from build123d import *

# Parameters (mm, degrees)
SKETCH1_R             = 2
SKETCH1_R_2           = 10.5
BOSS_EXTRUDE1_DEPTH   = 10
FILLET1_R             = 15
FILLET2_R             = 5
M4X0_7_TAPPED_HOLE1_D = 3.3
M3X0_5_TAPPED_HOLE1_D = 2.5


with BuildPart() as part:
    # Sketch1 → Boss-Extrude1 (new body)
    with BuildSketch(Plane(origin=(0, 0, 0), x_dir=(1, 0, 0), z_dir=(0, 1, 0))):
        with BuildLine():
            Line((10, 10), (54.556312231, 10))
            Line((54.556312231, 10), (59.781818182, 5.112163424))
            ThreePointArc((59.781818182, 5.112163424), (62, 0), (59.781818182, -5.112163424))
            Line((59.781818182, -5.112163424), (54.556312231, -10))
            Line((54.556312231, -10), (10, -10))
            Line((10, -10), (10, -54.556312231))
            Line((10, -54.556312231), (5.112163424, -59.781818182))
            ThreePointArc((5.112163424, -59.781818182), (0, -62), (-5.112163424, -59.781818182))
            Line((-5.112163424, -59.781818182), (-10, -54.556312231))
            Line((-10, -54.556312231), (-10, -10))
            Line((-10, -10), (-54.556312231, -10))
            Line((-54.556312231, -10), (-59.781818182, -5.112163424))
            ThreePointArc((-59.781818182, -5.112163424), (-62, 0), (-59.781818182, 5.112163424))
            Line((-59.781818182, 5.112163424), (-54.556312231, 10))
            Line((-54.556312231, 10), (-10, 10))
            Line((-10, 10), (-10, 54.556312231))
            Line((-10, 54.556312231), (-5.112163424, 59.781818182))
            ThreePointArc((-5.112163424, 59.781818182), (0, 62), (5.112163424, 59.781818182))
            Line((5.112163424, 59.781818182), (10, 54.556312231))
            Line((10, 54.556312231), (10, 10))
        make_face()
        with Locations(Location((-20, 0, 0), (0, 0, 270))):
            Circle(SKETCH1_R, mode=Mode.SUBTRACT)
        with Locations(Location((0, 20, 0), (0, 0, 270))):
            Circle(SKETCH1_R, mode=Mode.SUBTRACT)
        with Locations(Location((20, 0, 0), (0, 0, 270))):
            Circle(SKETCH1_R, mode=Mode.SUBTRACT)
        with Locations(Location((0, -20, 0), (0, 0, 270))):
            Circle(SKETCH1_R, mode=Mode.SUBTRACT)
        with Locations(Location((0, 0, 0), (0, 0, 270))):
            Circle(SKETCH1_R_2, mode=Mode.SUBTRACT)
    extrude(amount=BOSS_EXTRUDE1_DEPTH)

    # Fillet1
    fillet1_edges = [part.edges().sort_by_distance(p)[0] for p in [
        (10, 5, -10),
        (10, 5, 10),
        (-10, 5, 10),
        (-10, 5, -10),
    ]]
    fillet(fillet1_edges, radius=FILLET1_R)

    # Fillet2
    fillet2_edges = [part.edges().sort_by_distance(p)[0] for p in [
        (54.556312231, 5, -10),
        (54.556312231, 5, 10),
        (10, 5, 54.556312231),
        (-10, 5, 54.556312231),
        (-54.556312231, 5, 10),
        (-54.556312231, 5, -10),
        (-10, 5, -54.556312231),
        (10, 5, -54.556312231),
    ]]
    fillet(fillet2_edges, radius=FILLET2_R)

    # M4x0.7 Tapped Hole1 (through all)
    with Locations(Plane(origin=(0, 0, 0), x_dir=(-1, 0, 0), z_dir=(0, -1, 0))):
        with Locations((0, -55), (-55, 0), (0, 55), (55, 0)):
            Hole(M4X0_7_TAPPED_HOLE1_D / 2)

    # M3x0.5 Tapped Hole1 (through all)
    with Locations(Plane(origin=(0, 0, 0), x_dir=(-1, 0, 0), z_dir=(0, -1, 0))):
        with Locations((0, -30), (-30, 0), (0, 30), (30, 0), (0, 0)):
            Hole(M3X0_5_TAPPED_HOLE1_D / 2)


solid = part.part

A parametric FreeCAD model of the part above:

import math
import FreeCAD as App
import Part
import Sketcher

V = App.Vector
Q = App.Units.Quantity


def edges_at(feature, points):
    """Names of the edges that pass closest to the given points."""
    edges = feature.Shape.Edges
    near = lambda p: min(range(len(edges)), key=lambda i: edges[i].distToShape(Part.Vertex(*p))[0])
    return sorted({f"Edge{near(p) + 1}" for p in points})

doc = App.newDocument("Part")
body = doc.addObject("PartDesign::Body", "Body")

# Sketch on XZ plane
sketch1 = doc.addObject("Sketcher::SketchObject", "Sketch")
body.addObject(sketch1)
sketch1.AttachmentSupport = (doc.XZ_Plane, [""])
sketch1.MapMode = "FlatFace"
sketch1.addGeometry(Part.LineSegment(V(54.6, -10, 0), V(10, -10, 0)), False)
sketch1.addGeometry(Part.LineSegment(V(10, -10, 0), V(10, -54.6, 0)), False)
sketch1.addGeometry(Part.LineSegment(V(10, -54.6, 0), V(5.1, -59.8, 0)), False)
sketch1.addGeometry(Part.ArcOfCircle(Part.Circle(V(0, -55, 0), V(0, 0, 1), 7), math.radians(-137), math.radians(-43)), False)
sketch1.addGeometry(Part.LineSegment(V(-5.1, -59.8, 0), V(-10, -54.6, 0)), False)
sketch1.addGeometry(Part.LineSegment(V(-10, -54.6, 0), V(-10, -10, 0)), False)
sketch1.addGeometry(Part.LineSegment(V(-10, -10, 0), V(-54.6, -10, 0)), False)
sketch1.addGeometry(Part.LineSegment(V(-54.6, -10, 0), V(-59.8, -5.1, 0)), False)
sketch1.addGeometry(Part.ArcOfCircle(Part.Circle(V(-55, 0, 0), V(0, 0, 1), 7), math.radians(133), math.radians(227)), False)
sketch1.addGeometry(Part.LineSegment(V(-59.8, 5.1, 0), V(-54.6, 10, 0)), False)
sketch1.addGeometry(Part.LineSegment(V(-54.6, 10, 0), V(-10, 10, 0)), False)
sketch1.addGeometry(Part.LineSegment(V(-10, 10, 0), V(-10, 54.6, 0)), False)
sketch1.addGeometry(Part.LineSegment(V(-10, 54.6, 0), V(-5.1, 59.8, 0)), False)
sketch1.addGeometry(Part.ArcOfCircle(Part.Circle(V(0, 55, 0), V(0, 0, 1), 7), math.radians(43), math.radians(137)), False)
sketch1.addGeometry(Part.LineSegment(V(5.1, 59.8, 0), V(10, 54.6, 0)), False)
sketch1.addGeometry(Part.LineSegment(V(10, 54.6, 0), V(10, 10, 0)), False)
sketch1.addGeometry(Part.LineSegment(V(10, 10, 0), V(54.6, 10, 0)), False)
sketch1.addGeometry(Part.LineSegment(V(54.6, 10, 0), V(59.8, 5.1, 0)), False)
sketch1.addGeometry(Part.ArcOfCircle(Part.Circle(V(55, 0, 0), V(0, 0, 1), 7), math.radians(-47), math.radians(47)), False)
sketch1.addGeometry(Part.LineSegment(V(59.8, -5.1, 0), V(54.6, -10, 0)), False)
sketch1.addGeometry(Part.Circle(V(0, 20, 0), V(0, 0, 1), 2), False)
sketch1.addGeometry(Part.Circle(V(20, 0, 0), V(0, 0, 1), 2), False)
sketch1.addGeometry(Part.Circle(V(0, 0, 0), V(0, 0, 1), 10.5), False)
sketch1.addGeometry(Part.Circle(V(-20, 0, 0), V(0, 0, 1), 2), False)
sketch1.addGeometry(Part.Circle(V(0, -20, 0), V(0, 0, 1), 2), False)
sketch1.addConstraint(Sketcher.Constraint("Coincident", 0, 2, 1, 1))
sketch1.addConstraint(Sketcher.Constraint("Coincident", 1, 2, 2, 1))
sketch1.addConstraint(Sketcher.Constraint("Tangent", 2, 2, 3, 2))
sketch1.addConstraint(Sketcher.Constraint("Tangent", 3, 1, 4, 1))
sketch1.addConstraint(Sketcher.Constraint("Coincident", 4, 2, 5, 1))
sketch1.addConstraint(Sketcher.Constraint("Coincident", 5, 2, 6, 1))
sketch1.addConstraint(Sketcher.Constraint("Coincident", 6, 2, 7, 1))
sketch1.addConstraint(Sketcher.Constraint("Tangent", 7, 2, 8, 2))
sketch1.addConstraint(Sketcher.Constraint("Tangent", 8, 1, 9, 1))
sketch1.addConstraint(Sketcher.Constraint("Coincident", 9, 2, 10, 1))
sketch1.addConstraint(Sketcher.Constraint("Coincident", 10, 2, 11, 1))
sketch1.addConstraint(Sketcher.Constraint("Coincident", 11, 2, 12, 1))
sketch1.addConstraint(Sketcher.Constraint("Tangent", 12, 2, 13, 2))
sketch1.addConstraint(Sketcher.Constraint("Tangent", 13, 1, 14, 1))
sketch1.addConstraint(Sketcher.Constraint("Coincident", 14, 2, 15, 1))
sketch1.addConstraint(Sketcher.Constraint("Coincident", 15, 2, 16, 1))
sketch1.addConstraint(Sketcher.Constraint("Coincident", 16, 2, 17, 1))
sketch1.addConstraint(Sketcher.Constraint("Tangent", 17, 2, 18, 2))
sketch1.addConstraint(Sketcher.Constraint("Tangent", 18, 1, 19, 1))
sketch1.addConstraint(Sketcher.Constraint("Coincident", 19, 2, 0, 1))
sketch1.addConstraint(Sketcher.Constraint("Horizontal", 0))
sketch1.addConstraint(Sketcher.Constraint("Vertical", 1))
sketch1.addConstraint(Sketcher.Constraint("Vertical", 5))
sketch1.addConstraint(Sketcher.Constraint("Horizontal", 6))
sketch1.addConstraint(Sketcher.Constraint("Horizontal", 10))
sketch1.addConstraint(Sketcher.Constraint("Vertical", 11))
sketch1.addConstraint(Sketcher.Constraint("Vertical", 15))
sketch1.addConstraint(Sketcher.Constraint("Horizontal", 16))
sketch1.addConstraint(Sketcher.Constraint("Coincident", 22, 3, -1, 1))
sketch1.addConstraint(Sketcher.Constraint("Equal", 3, 8))
sketch1.addConstraint(Sketcher.Constraint("Equal", 8, 13))
sketch1.addConstraint(Sketcher.Constraint("Equal", 13, 18))
sketch1.addConstraint(Sketcher.Constraint("Equal", 20, 21))
sketch1.addConstraint(Sketcher.Constraint("Equal", 21, 23))
sketch1.addConstraint(Sketcher.Constraint("Equal", 23, 24))
sketch1.addConstraint(Sketcher.Constraint("Symmetric", 3, 3, 13, 3, -1, 1))
sketch1.addConstraint(Sketcher.Constraint("Symmetric", 8, 3, 18, 3, -1, 1))
sketch1.addConstraint(Sketcher.Constraint("Symmetric", 21, 3, 23, 3, -1, 1))
sketch1.addConstraint(Sketcher.Constraint("Symmetric", 20, 3, 24, 3, -1, 1))
sketch1.addConstraint(Sketcher.Constraint("Symmetric", 0, 2, 10, 2, -1, 1))
sketch1.addConstraint(Sketcher.Constraint("Symmetric", 4, 2, 14, 2, -1, 1))
sketch1.addConstraint(Sketcher.Constraint("Symmetric", 6, 2, 16, 2, -1, 1))
sketch1.addConstraint(Sketcher.Constraint("Symmetric", 2, 2, 3, 1, -2))
sketch1.addConstraint(Sketcher.Constraint("Symmetric", 0, 2, 5, 2, -2))
sketch1.addConstraint(Sketcher.Constraint("Symmetric", 8, 1, 17, 2, -2))
sketch1.addConstraint(Sketcher.Constraint("PointOnObject", 20, 3, -2))
sketch1.addConstraint(Sketcher.Constraint("PointOnObject", 21, 3, -1))
sketch1.addConstraint(Sketcher.Constraint("Perpendicular", 2, 7))
sketch1.addConstraint(Sketcher.Constraint("Perpendicular", 7, 12))
sketch1.addConstraint(Sketcher.Constraint("Perpendicular", 14, 19))
sketch1.addConstraint(Sketcher.Constraint("Equal", 16, 1))
sketch1.addConstraint(Sketcher.Constraint("Equal", 4, 7))
sketch1.addConstraint(Sketcher.Constraint("Diameter", 20, Q("4 mm")))
sketch1.addConstraint(Sketcher.Constraint("Diameter", 22, Q("21 mm")))
sketch1.addConstraint(Sketcher.Constraint("Radius", 3, Q("7 mm")))
sketch1.addConstraint(Sketcher.Constraint("DistanceY", 3, 3, -1, 1, Q("55 mm")))
sketch1.addConstraint(Sketcher.Constraint("DistanceY", -1, 1, 20, 3, Q("20 mm")))
sketch1.addConstraint(Sketcher.Constraint("DistanceX", -1, 1, 21, 3, Q("20 mm")))
sketch1.addConstraint(Sketcher.Constraint("DistanceX", -1, 1, 0, 2, Q("10 mm")))
sketch1.addConstraint(Sketcher.Constraint("Distance", 2, Q("7.155198 mm")))
pad1 = doc.addObject("PartDesign::Pad", "Pad")
body.addObject(pad1)
pad1.Profile = sketch1
pad1.Length = 10
pad1.Reversed = True
doc.recompute()

fillet = doc.addObject("PartDesign::Fillet", "Fillet")
body.addObject(fillet)
fillet.Base = (pad1, edges_at(pad1, [
    (10, 5, -10),
    (10, 5, 10),
    (-10, 5, 10),
    (-10, 5, -10),
]))
fillet.Radius = 15
doc.recompute()

fillet2 = doc.addObject("PartDesign::Fillet", "Fillet001")
body.addObject(fillet2)
fillet2.Base = (fillet, edges_at(fillet, [
    (54.556, 5, -10),
    (54.556, 5, 10),
    (10, 5, 54.556),
    (-10, 5, 54.556),
    (-54.556, 5, 10),
    (-54.556, 5, -10),
    (-10, 5, -54.556),
    (10, 5, -54.556),
]))
fillet2.Radius = 5

# Sketch on XZ plane
sketch2 = doc.addObject("Sketcher::SketchObject", "Sketch001")
body.addObject(sketch2)
sketch2.AttachmentSupport = (doc.XZ_Plane, [""])
sketch2.MapMode = "FlatFace"
sketch2.addGeometry(Part.Circle(V(0, 55, 0), V(0, 0, 1), 1.6), False)
sketch2.addGeometry(Part.Circle(V(55, 0, 0), V(0, 0, 1), 1.6), False)
sketch2.addGeometry(Part.Circle(V(0, -55, 0), V(0, 0, 1), 1.6), False)
sketch2.addGeometry(Part.Circle(V(-55, 0, 0), V(0, 0, 1), 1.6), False)
sketch2.addConstraint(Sketcher.Constraint("Equal", 0, 1))
sketch2.addConstraint(Sketcher.Constraint("Equal", 1, 2))
sketch2.addConstraint(Sketcher.Constraint("Equal", 2, 3))
sketch2.addConstraint(Sketcher.Constraint("Symmetric", 0, 3, 2, 3, -1, 1))
sketch2.addConstraint(Sketcher.Constraint("Symmetric", 1, 3, 3, 3, -1, 1))
sketch2.addConstraint(Sketcher.Constraint("PointOnObject", 0, 3, -2))
sketch2.addConstraint(Sketcher.Constraint("PointOnObject", 1, 3, -1))
sketch2.addConstraint(Sketcher.Constraint("Diameter", 0, Q("3.3 mm")))
sketch2.addConstraint(Sketcher.Constraint("DistanceY", -1, 1, 0, 3, Q("55 mm")))
sketch2.addConstraint(Sketcher.Constraint("DistanceX", -1, 1, 1, 3, Q("55 mm")))
doc.recompute()
hole = doc.addObject("PartDesign::Hole", "Hole")
body.addObject(hole)
hole.Profile = sketch2
hole.ThreadType = "None"
hole.Diameter = 3.3
hole.DepthType = "ThroughAll"

# Sketch on XZ plane
sketch3 = doc.addObject("Sketcher::SketchObject", "Sketch002")
body.addObject(sketch3)
sketch3.AttachmentSupport = (doc.XZ_Plane, [""])
sketch3.MapMode = "FlatFace"
sketch3.addGeometry(Part.Circle(V(0, 30, 0), V(0, 0, 1), 1.2), False)
sketch3.addGeometry(Part.Circle(V(30, 0, 0), V(0, 0, 1), 1.2), False)
sketch3.addGeometry(Part.Circle(V(0, -30, 0), V(0, 0, 1), 1.2), False)
sketch3.addGeometry(Part.Circle(V(-30, 0, 0), V(0, 0, 1), 1.2), False)
sketch3.addGeometry(Part.Circle(V(0, 0, 0), V(0, 0, 1), 1.2), False)
sketch3.addConstraint(Sketcher.Constraint("Coincident", 4, 3, -1, 1))
sketch3.addConstraint(Sketcher.Constraint("Equal", 0, 1))
sketch3.addConstraint(Sketcher.Constraint("Equal", 1, 2))
sketch3.addConstraint(Sketcher.Constraint("Equal", 2, 3))
sketch3.addConstraint(Sketcher.Constraint("Equal", 3, 4))
sketch3.addConstraint(Sketcher.Constraint("Symmetric", 0, 3, 2, 3, -1, 1))
sketch3.addConstraint(Sketcher.Constraint("Symmetric", 1, 3, 3, 3, -1, 1))
sketch3.addConstraint(Sketcher.Constraint("PointOnObject", 0, 3, -2))
sketch3.addConstraint(Sketcher.Constraint("PointOnObject", 1, 3, -1))
sketch3.addConstraint(Sketcher.Constraint("Diameter", 0, Q("2.5 mm")))
sketch3.addConstraint(Sketcher.Constraint("DistanceY", -1, 1, 0, 3, Q("30 mm")))
sketch3.addConstraint(Sketcher.Constraint("DistanceX", -1, 1, 1, 3, Q("30 mm")))
doc.recompute()
hole2 = doc.addObject("PartDesign::Hole", "Hole001")
body.addObject(hole2)
hole2.Profile = sketch3
hole2.ThreadType = "None"
hole2.Diameter = 2.5
hole2.DepthType = "ThroughAll"

doc.recompute()
